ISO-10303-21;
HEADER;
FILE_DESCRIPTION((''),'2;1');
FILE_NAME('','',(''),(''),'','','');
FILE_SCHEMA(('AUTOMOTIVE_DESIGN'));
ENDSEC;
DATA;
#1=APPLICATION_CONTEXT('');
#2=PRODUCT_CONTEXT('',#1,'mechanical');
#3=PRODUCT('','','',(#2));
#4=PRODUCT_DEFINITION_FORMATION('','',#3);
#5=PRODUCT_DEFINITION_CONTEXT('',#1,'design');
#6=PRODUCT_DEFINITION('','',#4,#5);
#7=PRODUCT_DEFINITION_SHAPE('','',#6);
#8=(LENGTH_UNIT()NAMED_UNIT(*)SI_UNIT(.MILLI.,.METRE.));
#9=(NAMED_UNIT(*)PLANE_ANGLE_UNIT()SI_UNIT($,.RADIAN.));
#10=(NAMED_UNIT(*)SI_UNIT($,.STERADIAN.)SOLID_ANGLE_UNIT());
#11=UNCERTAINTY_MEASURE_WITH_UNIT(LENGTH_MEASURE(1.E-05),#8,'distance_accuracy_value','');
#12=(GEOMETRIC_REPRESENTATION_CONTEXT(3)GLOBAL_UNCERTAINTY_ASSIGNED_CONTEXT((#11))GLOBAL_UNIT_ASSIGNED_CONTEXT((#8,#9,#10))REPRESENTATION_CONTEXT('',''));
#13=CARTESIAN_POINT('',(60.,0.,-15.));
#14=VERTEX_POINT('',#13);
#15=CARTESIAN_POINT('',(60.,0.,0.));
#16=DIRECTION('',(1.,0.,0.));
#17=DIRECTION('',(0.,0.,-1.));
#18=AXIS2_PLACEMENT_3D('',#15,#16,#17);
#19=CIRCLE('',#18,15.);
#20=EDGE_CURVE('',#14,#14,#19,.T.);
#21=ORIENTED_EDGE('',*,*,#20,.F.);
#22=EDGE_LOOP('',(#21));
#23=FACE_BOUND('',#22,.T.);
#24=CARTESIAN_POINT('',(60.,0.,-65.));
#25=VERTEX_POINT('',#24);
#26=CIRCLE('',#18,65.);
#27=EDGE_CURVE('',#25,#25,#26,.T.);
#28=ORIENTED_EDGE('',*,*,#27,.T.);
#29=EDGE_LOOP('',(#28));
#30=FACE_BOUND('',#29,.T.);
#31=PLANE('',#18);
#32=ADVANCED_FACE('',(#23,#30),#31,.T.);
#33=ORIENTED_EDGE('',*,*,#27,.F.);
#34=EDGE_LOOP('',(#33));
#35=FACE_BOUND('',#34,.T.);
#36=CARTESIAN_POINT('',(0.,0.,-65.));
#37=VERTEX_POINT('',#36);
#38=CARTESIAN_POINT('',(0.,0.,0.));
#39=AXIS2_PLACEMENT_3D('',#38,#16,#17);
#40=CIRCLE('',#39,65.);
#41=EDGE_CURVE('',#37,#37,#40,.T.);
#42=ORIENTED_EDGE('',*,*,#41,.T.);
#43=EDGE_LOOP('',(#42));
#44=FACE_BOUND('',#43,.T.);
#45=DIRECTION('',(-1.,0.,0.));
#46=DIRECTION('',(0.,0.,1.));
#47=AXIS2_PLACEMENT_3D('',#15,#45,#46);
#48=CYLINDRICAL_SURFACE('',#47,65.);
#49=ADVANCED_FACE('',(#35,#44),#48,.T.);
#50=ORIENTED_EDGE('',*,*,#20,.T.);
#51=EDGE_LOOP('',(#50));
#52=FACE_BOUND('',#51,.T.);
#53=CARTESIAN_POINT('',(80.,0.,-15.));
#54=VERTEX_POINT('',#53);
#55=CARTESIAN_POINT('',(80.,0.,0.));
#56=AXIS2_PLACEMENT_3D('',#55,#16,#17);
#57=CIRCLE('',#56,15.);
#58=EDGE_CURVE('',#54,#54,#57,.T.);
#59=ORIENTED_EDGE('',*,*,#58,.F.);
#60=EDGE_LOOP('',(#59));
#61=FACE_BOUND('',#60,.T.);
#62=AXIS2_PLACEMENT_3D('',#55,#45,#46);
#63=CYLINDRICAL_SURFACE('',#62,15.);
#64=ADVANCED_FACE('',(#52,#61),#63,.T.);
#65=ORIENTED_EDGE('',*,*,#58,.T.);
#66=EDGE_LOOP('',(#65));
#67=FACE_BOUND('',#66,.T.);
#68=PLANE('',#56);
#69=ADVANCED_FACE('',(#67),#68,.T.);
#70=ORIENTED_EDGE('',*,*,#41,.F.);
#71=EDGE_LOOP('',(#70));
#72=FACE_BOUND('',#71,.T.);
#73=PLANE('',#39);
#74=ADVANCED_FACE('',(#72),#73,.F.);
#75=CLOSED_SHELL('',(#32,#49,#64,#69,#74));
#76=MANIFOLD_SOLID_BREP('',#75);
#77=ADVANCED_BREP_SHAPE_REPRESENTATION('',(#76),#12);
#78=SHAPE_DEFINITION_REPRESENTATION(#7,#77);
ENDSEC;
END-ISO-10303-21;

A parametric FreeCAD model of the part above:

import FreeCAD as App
import Part
import Sketcher

V = App.Vector
Q = App.Units.Quantity

doc = App.newDocument("Part")
body = doc.addObject("PartDesign::Body", "Body")

sketch1 = doc.addObject("Sketcher::SketchObject", "Sketch")
body.addObject(sketch1)
sketch1.AttachmentSupport = (doc.YZ_Plane, [""])
sketch1.MapMode = "FlatFace"
sketch1.addGeometry(Part.Circle(V(0, 0, 0), V(0, 0, 1), 65), False)
sketch1.addConstraint(Sketcher.Constraint("Coincident", 0, 3, -1, 1))
sketch1.addConstraint(Sketcher.Constraint("Diameter", 0, Q("130 mm")))
pad1 = doc.addObject("PartDesign::Pad", "Pad")
body.addObject(pad1)
pad1.Profile = sketch1
pad1.Length = 60

sketch2 = doc.addObject("Sketcher::SketchObject", "Sketch001")
body.addObject(sketch2)
sketch2.AttachmentSupport = (doc.YZ_Plane, [""])
sketch2.MapMode = "FlatFace"
sketch2.AttachmentOffset = App.Placement(V(0, 0, 60), App.Rotation())
sketch2.addGeometry(Part.Circle(V(0, 0, 0), V(0, 0, 1), 15), False)
sketch2.addConstraint(Sketcher.Constraint("Coincident", 0, 3, -1, 1))
sketch2.addConstraint(Sketcher.Constraint("Diameter", 0, Q("30 mm")))
pad2 = doc.addObject("PartDesign::Pad", "Pad001")
body.addObject(pad2)
pad2.Profile = sketch2
pad2.Length = 20

doc.recompute()
